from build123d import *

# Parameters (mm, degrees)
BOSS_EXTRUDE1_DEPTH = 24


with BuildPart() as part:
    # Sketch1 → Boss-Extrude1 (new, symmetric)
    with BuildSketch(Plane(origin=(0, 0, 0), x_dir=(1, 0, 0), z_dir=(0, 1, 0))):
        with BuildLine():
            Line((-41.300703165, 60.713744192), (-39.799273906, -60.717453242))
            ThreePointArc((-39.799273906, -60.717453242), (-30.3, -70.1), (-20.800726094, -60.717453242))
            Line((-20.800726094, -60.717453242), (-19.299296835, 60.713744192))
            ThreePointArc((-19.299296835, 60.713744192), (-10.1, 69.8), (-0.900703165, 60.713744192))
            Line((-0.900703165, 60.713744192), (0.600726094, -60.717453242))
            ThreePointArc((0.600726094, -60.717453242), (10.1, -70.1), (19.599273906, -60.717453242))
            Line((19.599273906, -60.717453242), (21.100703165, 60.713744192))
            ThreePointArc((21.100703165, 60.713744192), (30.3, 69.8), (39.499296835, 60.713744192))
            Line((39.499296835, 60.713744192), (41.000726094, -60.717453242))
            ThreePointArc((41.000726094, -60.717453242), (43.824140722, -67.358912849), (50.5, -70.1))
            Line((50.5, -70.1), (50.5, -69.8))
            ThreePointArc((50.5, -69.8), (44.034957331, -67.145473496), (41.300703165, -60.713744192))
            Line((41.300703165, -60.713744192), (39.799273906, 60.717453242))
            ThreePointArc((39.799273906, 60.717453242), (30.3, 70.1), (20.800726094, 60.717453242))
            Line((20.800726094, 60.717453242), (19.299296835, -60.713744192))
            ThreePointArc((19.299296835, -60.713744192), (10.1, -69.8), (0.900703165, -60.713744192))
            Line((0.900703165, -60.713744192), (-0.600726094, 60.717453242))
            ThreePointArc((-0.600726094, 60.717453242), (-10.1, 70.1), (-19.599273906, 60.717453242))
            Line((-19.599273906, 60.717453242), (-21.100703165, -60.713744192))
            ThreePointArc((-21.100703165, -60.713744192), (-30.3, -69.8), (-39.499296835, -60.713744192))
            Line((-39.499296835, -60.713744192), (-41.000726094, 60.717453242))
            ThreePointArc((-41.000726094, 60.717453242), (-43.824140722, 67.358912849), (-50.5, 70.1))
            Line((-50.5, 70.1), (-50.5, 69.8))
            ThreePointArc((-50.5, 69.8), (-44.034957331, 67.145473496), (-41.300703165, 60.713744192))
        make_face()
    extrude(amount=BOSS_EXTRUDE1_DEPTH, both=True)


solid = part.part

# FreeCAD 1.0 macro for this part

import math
import FreeCAD as App
import Part
import Sketcher
Q = App.Units.Quantity

doc = App.newDocument("Part")
body = doc.addObject("PartDesign::Body", "Body")

# Sketch on XZ plane
sketch1 = doc.addObject("Sketcher::SketchObject", "Sketch")
body.addObject(sketch1)
sketch1.AttachmentSupport = (doc.XZ_Plane, [""])
sketch1.MapMode = "FlatFace"
sketch1.addGeometry(Part.LineSegment(App.Vector(-41.3, -60.71, 0), App.Vector(-39.8, 60.72, 0)), False)
sketch1.addGeometry(Part.ArcOfCircle(Part.Circle(App.Vector(-30.3, 60.6, 0), App.Vector(0, 0, 1), 9.5), math.radians(1), math.radians(179)), False)
sketch1.addGeometry(Part.LineSegment(App.Vector(-20.8, 60.72, 0), App.Vector(-19.3, -60.71, 0)), False)
sketch1.addGeometry(Part.ArcOfCircle(Part.Circle(App.Vector(-10.1, -60.6, 0), App.Vector(0, 0, 1), 9.2), math.radians(-179), math.radians(-1)), False)
sketch1.addGeometry(Part.LineSegment(App.Vector(-0.9, -60.71, 0), App.Vector(0.6, 60.72, 0)), False)
sketch1.addGeometry(Part.ArcOfCircle(Part.Circle(App.Vector(10.1, 60.6, 0), App.Vector(0, 0, 1), 9.5), math.radians(1), math.radians(179)), False)
sketch1.addGeometry(Part.LineSegment(App.Vector(19.6, 60.72, 0), App.Vector(21.1, -60.71, 0)), False)
sketch1.addGeometry(Part.ArcOfCircle(Part.Circle(App.Vector(30.3, -60.6, 0), App.Vector(0, 0, 1), 9.2), math.radians(-179), math.radians(-1)), False)
sketch1.addGeometry(Part.LineSegment(App.Vector(39.5, -60.71, 0), App.Vector(41, 60.72, 0)), False)
sketch1.addGeometry(Part.ArcOfCircle(Part.Circle(App.Vector(50.5, 60.6, 0), App.Vector(0, 0, 1), 9.5), math.radians(90), math.radians(179)), False)
sketch1.addGeometry(Part.LineSegment(App.Vector(50.5, 70.1, 0), App.Vector(50.5, 69.8, 0)), False)
sketch1.addGeometry(Part.ArcOfCircle(Part.Circle(App.Vector(50.5, 60.6, 0), App.Vector(0, 0, 1), 9.2), math.radians(90), math.radians(179)), False)
sketch1.addGeometry(Part.LineSegment(App.Vector(41.3, 60.71, 0), App.Vector(39.8, -60.72, 0)), False)
sketch1.addGeometry(Part.ArcOfCircle(Part.Circle(App.Vector(30.3, -60.6, 0), App.Vector(0, 0, 1), 9.5), math.radians(-179), math.radians(-1)), False)
sketch1.addGeometry(Part.LineSegment(App.Vector(20.8, -60.72, 0), App.Vector(19.3, 60.71, 0)), False)
sketch1.addGeometry(Part.ArcOfCircle(Part.Circle(App.Vector(10.1, 60.6, 0), App.Vector(0, 0, 1), 9.2), math.radians(1), math.radians(179)), False)
sketch1.addGeometry(Part.LineSegment(App.Vector(0.9, 60.71, 0), App.Vector(-0.6, -60.72, 0)), False)
sketch1.addGeometry(Part.ArcOfCircle(Part.Circle(App.Vector(-10.1, -60.6, 0), App.Vector(0, 0, 1), 9.5), math.radians(-179), math.radians(-1)), False)
sketch1.addGeometry(Part.LineSegment(App.Vector(-19.6, -60.72, 0), App.Vector(-21.1, 60.71, 0)), False)
sketch1.addGeometry(Part.ArcOfCircle(Part.Circle(App.Vector(-30.3, 60.6, 0), App.Vector(0, 0, 1), 9.2), math.radians(1), math.radians(179)), False)
sketch1.addGeometry(Part.LineSegment(App.Vector(-39.5, 60.71, 0), App.Vector(-41, -60.72, 0)), False)
sketch1.addGeometry(Part.ArcOfCircle(Part.Circle(App.Vector(-50.5, -60.6, 0), App.Vector(0, 0, 1), 9.5), math.radians(-90), math.radians(-1)), False)
sketch1.addGeometry(Part.LineSegment(App.Vector(-50.5, -70.1, 0), App.Vector(-50.5, -69.8, 0)), False)
sketch1.addGeometry(Part.ArcOfCircle(Part.Circle(App.Vector(-50.5, -60.6, 0), App.Vector(0, 0, 1), 9.2), math.radians(-90), math.radians(-1)), False)
sketch1.addConstraint(Sketcher.Constraint("Tangent", 0, 2, 1, 2))
sketch1.addConstraint(Sketcher.Constraint("Tangent", 1, 1, 2, 1))
sketch1.addConstraint(Sketcher.Constraint("Tangent", 2, 2, 3, 1))
sketch1.addConstraint(Sketcher.Constraint("Tangent", 3, 2, 4, 1))
sketch1.addConstraint(Sketcher.Constraint("Tangent", 4, 2, 5, 2))
sketch1.addConstraint(Sketcher.Constraint("Tangent", 5, 1, 6, 1))
sketch1.addConstraint(Sketcher.Constraint("Tangent", 6, 2, 7, 1))
sketch1.addConstraint(Sketcher.Constraint("Tangent", 7, 2, 8, 1))
sketch1.addConstraint(Sketcher.Constraint("Tangent", 8, 2, 9, 2))
sketch1.addConstraint(Sketcher.Constraint("Coincident", 9, 1, 10, 1))
sketch1.addConstraint(Sketcher.Constraint("Coincident", 10, 2, 11, 1))
sketch1.addConstraint(Sketcher.Constraint("Tangent", 11, 2, 12, 1))
sketch1.addConstraint(Sketcher.Constraint("Tangent", 12, 2, 13, 2))
sketch1.addConstraint(Sketcher.Constraint("Tangent", 13, 1, 14, 1))
sketch1.addConstraint(Sketcher.Constraint("Tangent", 14, 2, 15, 1))
sketch1.addConstraint(Sketcher.Constraint("Tangent", 15, 2, 16, 1))
sketch1.addConstraint(Sketcher.Constraint("Tangent", 16, 2, 17, 2))
sketch1.addConstraint(Sketcher.Constraint("Tangent", 17, 1, 18, 1))
sketch1.addConstraint(Sketcher.Constraint("Tangent", 18, 2, 19, 1))
sketch1.addConstraint(Sketcher.Constraint("Tangent", 19, 2, 20, 1))
sketch1.addConstraint(Sketcher.Constraint("Tangent", 20, 2, 21, 2))
sketch1.addConstraint(Sketcher.Constraint("Coincident", 21, 1, 22, 1))
sketch1.addConstraint(Sketcher.Constraint("Coincident", 22, 2, 23, 1))
sketch1.addConstraint(Sketcher.Constraint("Tangent", 23, 2, 0, 1))
sketch1.addConstraint(Sketcher.Constraint("Vertical", 10))
sketch1.addConstraint(Sketcher.Constraint("Vertical", 22))
sketch1.addConstraint(Sketcher.Constraint("Coincident", 11, 3, 9, 3))
sketch1.addConstraint(Sketcher.Constraint("Coincident", 13, 3, 7, 3))
sketch1.addConstraint(Sketcher.Constraint("Coincident", 15, 3, 5, 3))
sketch1.addConstraint(Sketcher.Constraint("Coincident", 17, 3, 3, 3))
sketch1.addConstraint(Sketcher.Constraint("Coincident", 19, 3, 1, 3))
sketch1.addConstraint(Sketcher.Constraint("Coincident", 23, 3, 21, 3))
sketch1.addConstraint(Sketcher.Constraint("Equal", 1, 5))
sketch1.addConstraint(Sketcher.Constraint("Equal", 3, 7))
sketch1.addConstraint(Sketcher.Constraint("Equal", 5, 9))
sketch1.addConstraint(Sketcher.Constraint("Equal", 7, 11))
sketch1.addConstraint(Sketcher.Constraint("Equal", 9, 13))
sketch1.addConstraint(Sketcher.Constraint("Equal", 11, 15))
sketch1.addConstraint(Sketcher.Constraint("Equal", 13, 17))
sketch1.addConstraint(Sketcher.Constraint("Equal", 15, 19))
sketch1.addConstraint(Sketcher.Constraint("Equal", 17, 21))
sketch1.addConstraint(Sketcher.Constraint("Equal", 19, 23))
sketch1.addConstraint(Sketcher.Constraint("Symmetric", 3, 3, 5, 3, -1, 1))
sketch1.addConstraint(Sketcher.Constraint("Symmetric", 1, 3, 7, 3, -1, 1))
sketch1.addConstraint(Sketcher.Constraint("Symmetric", 9, 3, 21, 3, -1, 1))
sketch1.addConstraint(Sketcher.Constraint("Parallel", 0, 4))
sketch1.addConstraint(Sketcher.Constraint("Horizontal", 1, 3, 5, 3))
sketch1.addConstraint(Sketcher.Constraint("Horizontal", 5, 3, 9, 3))
sketch1.addConstraint(Sketcher.Constraint("Horizontal", 0, 2, 1, 1))
sketch1.addConstraint(Sketcher.Constraint("Vertical", 11, 3, 9, 1))
sketch1.addConstraint(Sketcher.Constraint("Vertical", 23, 3, 21, 1))
sketch1.addConstraint(Sketcher.Constraint("Radius", 1, Q("9.5 mm")))
sketch1.addConstraint(Sketcher.Constraint("Radius", 3, Q("9.2 mm")))
sketch1.addConstraint(Sketcher.Constraint("DistanceX", 1, 3, -1, 1, Q("30.3 mm")))
sketch1.addConstraint(Sketcher.Constraint("DistanceY", -1, 1, 1, 3, Q("60.6 mm")))
pad1 = doc.addObject("PartDesign::Pad", "Pad")
body.addObject(pad1)
pad1.Profile = sketch1
pad1.Length = 48
pad1.Midplane = True

doc.recompute()
